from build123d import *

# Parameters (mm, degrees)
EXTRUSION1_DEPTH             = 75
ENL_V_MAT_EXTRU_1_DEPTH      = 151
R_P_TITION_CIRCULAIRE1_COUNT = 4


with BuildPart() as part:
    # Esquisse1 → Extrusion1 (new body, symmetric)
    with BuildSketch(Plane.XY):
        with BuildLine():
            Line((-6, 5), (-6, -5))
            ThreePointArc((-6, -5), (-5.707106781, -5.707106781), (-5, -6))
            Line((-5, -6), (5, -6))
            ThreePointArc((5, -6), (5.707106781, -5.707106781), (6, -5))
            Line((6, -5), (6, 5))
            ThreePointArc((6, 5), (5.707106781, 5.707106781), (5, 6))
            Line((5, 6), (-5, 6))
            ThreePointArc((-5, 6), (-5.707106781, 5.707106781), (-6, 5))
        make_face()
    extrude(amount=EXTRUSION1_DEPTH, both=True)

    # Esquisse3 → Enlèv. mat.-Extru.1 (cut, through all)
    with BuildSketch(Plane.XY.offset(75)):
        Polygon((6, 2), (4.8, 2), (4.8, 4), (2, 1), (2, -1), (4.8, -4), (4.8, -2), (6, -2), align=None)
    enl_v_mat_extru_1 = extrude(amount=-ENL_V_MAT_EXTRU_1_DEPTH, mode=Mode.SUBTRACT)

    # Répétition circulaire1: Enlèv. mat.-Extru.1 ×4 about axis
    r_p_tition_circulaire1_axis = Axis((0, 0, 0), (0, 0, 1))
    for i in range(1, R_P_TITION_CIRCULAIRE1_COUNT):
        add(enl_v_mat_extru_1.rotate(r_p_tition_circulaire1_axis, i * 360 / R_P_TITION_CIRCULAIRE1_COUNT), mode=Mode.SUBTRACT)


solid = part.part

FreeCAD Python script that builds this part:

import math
import FreeCAD as App
import Part
import Sketcher
from FreeCAD import Vector
Q = App.Units.Quantity

doc = App.newDocument("Part")
body = doc.addObject("PartDesign::Body", "Body")

# Sketch on XY plane
sketch1 = body.newObject("Sketcher::SketchObject", "Sketch")
sketch1.AttachmentSupport = (doc.getObject("XY_Plane"), [""])
sketch1.MapMode = "FlatFace"
sketch1.addGeometry([
    Part.LineSegment(Vector(-6, 5, 0), Vector(-6, -5, 0)),  # 0
    Part.ArcOfCircle(Part.Circle(Vector(-5, -5, 0), Vector(0, 0, 1), 1), math.radians(-180), math.radians(-90)),  # 1
    Part.LineSegment(Vector(-5, -6, 0), Vector(5, -6, 0)),  # 2
    Part.ArcOfCircle(Part.Circle(Vector(5, -5, 0), Vector(0, 0, 1), 1), math.radians(-90), math.radians(0)),  # 3
    Part.LineSegment(Vector(6, -5, 0), Vector(6, 5, 0)),  # 4
    Part.ArcOfCircle(Part.Circle(Vector(5, 5, 0), Vector(0, 0, 1), 1), math.radians(0), math.radians(90)),  # 5
    Part.LineSegment(Vector(5, 6, 0), Vector(-5, 6, 0)),  # 6
    Part.ArcOfCircle(Part.Circle(Vector(-5, 5, 0), Vector(0, 0, 1), 1), math.radians(90), math.radians(180)),  # 7
], False)
sketch1.addConstraint([
    Sketcher.Constraint("Tangent", 0, 2, 1, 1),
    Sketcher.Constraint("Tangent", 1, 2, 2, 1),
    Sketcher.Constraint("Tangent", 2, 2, 3, 1),
    Sketcher.Constraint("Tangent", 3, 2, 4, 1),
    Sketcher.Constraint("Tangent", 4, 2, 5, 1),
    Sketcher.Constraint("Tangent", 5, 2, 6, 1),
    Sketcher.Constraint("Tangent", 6, 2, 7, 1),
    Sketcher.Constraint("Tangent", 7, 2, 0, 1),
    Sketcher.Constraint("Vertical", 0),
    Sketcher.Constraint("Horizontal", 2),
    Sketcher.Constraint("Vertical", 4),
    Sketcher.Constraint("Horizontal", 6),
    Sketcher.Constraint("Equal", 1, 3),
    Sketcher.Constraint("Equal", 3, 5),
    Sketcher.Constraint("Equal", 5, 7),
    Sketcher.Constraint("Symmetric", 1, 3, 5, 3, -1, 1),
    Sketcher.Constraint("Equal", 6, 0),
    Sketcher.Constraint("Radius", 1, Q("1 mm")),
    Sketcher.Constraint("DistanceX", 2, 1, 2, 2, Q("10 mm")),
])
pad1 = body.newObject("PartDesign::Pad", "Pad")
pad1.Profile = sketch1
pad1.Length = 150
pad1.Midplane = True

# Sketch on XY plane
sketch2 = body.newObject("Sketcher::SketchObject", "Sketch001")
sketch2.AttachmentSupport = (doc.getObject("XY_Plane"), [""])
sketch2.MapMode = "FlatFace"
sketch2.AttachmentOffset = App.Placement(Vector(0, 0, 75), App.Rotation())
sketch2.addGeometry([
    Part.LineSegment(Vector(6, 2, 0), Vector(4.8, 2, 0)),  # 0
    Part.LineSegment(Vector(4.8, 2, 0), Vector(4.8, 4, 0)),  # 1
    Part.LineSegment(Vector(4.8, 4, 0), Vector(2, 1, 0)),  # 2
    Part.LineSegment(Vector(2, 1, 0), Vector(2, -1, 0)),  # 3
    Part.LineSegment(Vector(2, -1, 0), Vector(4.8, -4, 0)),  # 4
    Part.LineSegment(Vector(4.8, -4, 0), Vector(4.8, -2, 0)),  # 5
    Part.LineSegment(Vector(4.8, -2, 0), Vector(6, -2, 0)),  # 6
    Part.LineSegment(Vector(6, -2, 0), Vector(6, 2, 0)),  # 7
], False)
sketch2.addConstraint([
    Sketcher.Constraint("Coincident", 0, 2, 1, 1),
    Sketcher.Constraint("Coincident", 1, 2, 2, 1),
    Sketcher.Constraint("Coincident", 2, 2, 3, 1),
    Sketcher.Constraint("Coincident", 3, 2, 4, 1),
    Sketcher.Constraint("Coincident", 4, 2, 5, 1),
    Sketcher.Constraint("Coincident", 5, 2, 6, 1),
    Sketcher.Constraint("Coincident", 6, 2, 7, 1),
    Sketcher.Constraint("Coincident", 7, 2, 0, 1),
    Sketcher.Constraint("Horizontal", 0),
    Sketcher.Constraint("Vertical", 1),
    Sketcher.Constraint("Vertical", 3),
    Sketcher.Constraint("Vertical", 5),
    Sketcher.Constraint("Horizontal", 6),
    Sketcher.Constraint("Vertical", 7),
    Sketcher.Constraint("Symmetric", 1, 2, 4, 2, -1),
    Sketcher.Constraint("Equal", 1, 3),
    Sketcher.Constraint("Equal", 3, 5),
    Sketcher.Constraint("Equal", 2, 4),
    Sketcher.Constraint("DistanceY", 1, 1, 1, 2, Q("2 mm")),
    Sketcher.Constraint("DistanceY", 7, 1, 7, 2, Q("4 mm")),
    Sketcher.Constraint("DistanceX", 0, 2, 0, 1, Q("1.2 mm")),
    Sketcher.Constraint("DistanceX", -1, 1, 2, 2, Q("2 mm")),
    Sketcher.Constraint("DistanceX", -1, 1, 6, 2, Q("6 mm")),
])
pocket1 = body.newObject("PartDesign::Pocket", "Pocket")
pocket1.Profile = sketch2
pocket1.Type = "ThroughAll"
doc.recompute()

polarpattern = body.newObject("PartDesign::PolarPattern", "PolarPattern")
polarpattern.Originals = [pocket1]
polarpattern.Axis = (doc.getObject("Z_Axis"), [""])
polarpattern.Angle = 360
polarpattern.Occurrences = 4
body.Tip = polarpattern

doc.recompute()
